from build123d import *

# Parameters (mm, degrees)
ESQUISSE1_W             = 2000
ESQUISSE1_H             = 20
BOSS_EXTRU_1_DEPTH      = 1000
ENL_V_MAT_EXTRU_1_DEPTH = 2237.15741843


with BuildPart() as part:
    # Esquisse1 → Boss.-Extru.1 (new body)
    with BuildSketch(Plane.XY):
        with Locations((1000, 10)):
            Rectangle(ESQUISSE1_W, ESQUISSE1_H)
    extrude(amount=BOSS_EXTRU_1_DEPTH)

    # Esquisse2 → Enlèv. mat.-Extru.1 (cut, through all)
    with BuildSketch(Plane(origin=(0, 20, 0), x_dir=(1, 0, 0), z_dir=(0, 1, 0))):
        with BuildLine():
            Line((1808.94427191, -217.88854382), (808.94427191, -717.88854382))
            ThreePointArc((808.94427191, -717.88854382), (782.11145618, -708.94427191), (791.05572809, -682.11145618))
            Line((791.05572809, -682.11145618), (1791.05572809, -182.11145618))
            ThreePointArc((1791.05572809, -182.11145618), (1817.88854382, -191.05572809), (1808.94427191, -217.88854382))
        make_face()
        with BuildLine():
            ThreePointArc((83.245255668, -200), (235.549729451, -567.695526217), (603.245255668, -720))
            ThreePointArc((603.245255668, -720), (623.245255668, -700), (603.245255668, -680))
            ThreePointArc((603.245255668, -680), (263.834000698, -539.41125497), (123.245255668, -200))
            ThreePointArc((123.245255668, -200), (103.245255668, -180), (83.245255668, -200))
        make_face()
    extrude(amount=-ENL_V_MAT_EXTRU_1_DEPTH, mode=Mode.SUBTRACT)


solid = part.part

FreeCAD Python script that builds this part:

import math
import FreeCAD as App
import Part
import Sketcher

V = App.Vector
Q = App.Units.Quantity


def add_polygon(sketch, points):
    """Adds a closed chain of lines whose ends are joined by coincident constraints."""
    first, n = sketch.GeometryCount, len(points)
    for a, b in zip(points, points[1:] + points[:1]):
        sketch.addGeometry(Part.LineSegment(App.Vector(*a, 0), App.Vector(*b, 0)), False)
    for i in range(n):
        sketch.addConstraint(Sketcher.Constraint("Coincident", first + i, 2, first + (i + 1) % n, 1))

doc = App.newDocument("Part")
body = doc.addObject("PartDesign::Body", "Body")

# Sketch on XY plane
sketch1 = body.newObject("Sketcher::SketchObject", "Sketch")
sketch1.AttachmentSupport = (doc.getObject("XY_Plane"), [""])
sketch1.MapMode = "FlatFace"
add_polygon(sketch1, [(0, 20), (0, 0), (2000, 0), (2000, 20)])  # lines 0-3
sketch1.addConstraint([
    Sketcher.Constraint("Vertical", 0),
    Sketcher.Constraint("Horizontal", 1),
    Sketcher.Constraint("Vertical", 2),
    Sketcher.Constraint("Horizontal", 3),
    Sketcher.Constraint("Coincident", 0, 2, -1, 1),
    Sketcher.Constraint("DistanceX", 1, 1, 1, 2, Q("2000 mm")),
    Sketcher.Constraint("DistanceY", 0, 2, 0, 1, Q("20 mm")),
])
pad1 = body.newObject("PartDesign::Pad", "Pad")
pad1.Profile = sketch1
pad1.Length = 1000

# Sketch on XZ plane
sketch2 = body.newObject("Sketcher::SketchObject", "Sketch001")
sketch2.AttachmentSupport = (doc.getObject("XZ_Plane"), [""])
sketch2.MapMode = "FlatFace"
sketch2.AttachmentOffset = App.Placement(V(0, 0, -20), App.Rotation())
sketch2.addGeometry([
    Part.LineSegment(V(809, 718, 0), V(1809, 218, 0)),  # 0
    Part.ArcOfCircle(Part.Circle(V(1800, 200, 0), V(0, 0, 1), 20), math.radians(-117), math.radians(63)),  # 1
    Part.LineSegment(V(1791, 182, 0), V(791, 682, 0)),  # 2
    Part.ArcOfCircle(Part.Circle(V(800, 700, 0), V(0, 0, 1), 20), math.radians(63), math.radians(243)),  # 3
    Part.ArcOfCircle(Part.Circle(V(603, 200, 0), V(0, 0, 1), 520), math.radians(90), math.radians(180)),  # 4
    Part.ArcOfCircle(Part.Circle(V(603, 700, 0), V(0, 0, 1), 20), math.radians(-90), math.radians(90)),  # 5
    Part.ArcOfCircle(Part.Circle(V(603, 200, 0), V(0, 0, 1), 480), math.radians(90), math.radians(180)),  # 6
    Part.ArcOfCircle(Part.Circle(V(103, 200, 0), V(0, 0, 1), 20), math.radians(180), math.radians(360)),  # 7
], False)
sketch2.addConstraint([
    Sketcher.Constraint("Tangent", 0, 2, 1, 2),
    Sketcher.Constraint("Tangent", 1, 1, 2, 1),
    Sketcher.Constraint("Tangent", 2, 2, 3, 2),
    Sketcher.Constraint("Tangent", 3, 1, 0, 1),
    Sketcher.Constraint("Tangent", 4, 1, 5, 2),
    Sketcher.Constraint("Tangent", 5, 1, 6, 1),
    Sketcher.Constraint("Tangent", 6, 2, 7, 2),
    Sketcher.Constraint("Tangent", 7, 1, 4, 2),
    Sketcher.Constraint("Coincident", 6, 3, 4, 3),
    Sketcher.Constraint("Equal", 1, 3),
    Sketcher.Constraint("Equal", 3, 5),
    Sketcher.Constraint("Horizontal", 1, 3, 4, 3),
    Sketcher.Constraint("Horizontal", 3, 3, 5, 3),
    Sketcher.Constraint("Horizontal", 6, 3, 7, 3),
    Sketcher.Constraint("Vertical", 4, 3, 5, 3),
    Sketcher.Constraint("Radius", 1, Q("20 mm")),
    Sketcher.Constraint("Radius", 4, Q("520 mm")),
    Sketcher.Constraint("DistanceX", -1, 1, 1, 3, Q("1800 mm")),
    Sketcher.Constraint("DistanceY", -1, 1, 1, 3, Q("200 mm")),
    Sketcher.Constraint("DistanceX", -1, 1, 3, 3, Q("800 mm")),
    Sketcher.Constraint("DistanceX", -1, 1, 4, 3, Q("603.245256 mm")),
])
pocket1 = body.newObject("PartDesign::Pocket", "Pocket")
pocket1.Profile = sketch2
pocket1.Type = "ThroughAll"
pocket1.Reversed = True

doc.recompute()
